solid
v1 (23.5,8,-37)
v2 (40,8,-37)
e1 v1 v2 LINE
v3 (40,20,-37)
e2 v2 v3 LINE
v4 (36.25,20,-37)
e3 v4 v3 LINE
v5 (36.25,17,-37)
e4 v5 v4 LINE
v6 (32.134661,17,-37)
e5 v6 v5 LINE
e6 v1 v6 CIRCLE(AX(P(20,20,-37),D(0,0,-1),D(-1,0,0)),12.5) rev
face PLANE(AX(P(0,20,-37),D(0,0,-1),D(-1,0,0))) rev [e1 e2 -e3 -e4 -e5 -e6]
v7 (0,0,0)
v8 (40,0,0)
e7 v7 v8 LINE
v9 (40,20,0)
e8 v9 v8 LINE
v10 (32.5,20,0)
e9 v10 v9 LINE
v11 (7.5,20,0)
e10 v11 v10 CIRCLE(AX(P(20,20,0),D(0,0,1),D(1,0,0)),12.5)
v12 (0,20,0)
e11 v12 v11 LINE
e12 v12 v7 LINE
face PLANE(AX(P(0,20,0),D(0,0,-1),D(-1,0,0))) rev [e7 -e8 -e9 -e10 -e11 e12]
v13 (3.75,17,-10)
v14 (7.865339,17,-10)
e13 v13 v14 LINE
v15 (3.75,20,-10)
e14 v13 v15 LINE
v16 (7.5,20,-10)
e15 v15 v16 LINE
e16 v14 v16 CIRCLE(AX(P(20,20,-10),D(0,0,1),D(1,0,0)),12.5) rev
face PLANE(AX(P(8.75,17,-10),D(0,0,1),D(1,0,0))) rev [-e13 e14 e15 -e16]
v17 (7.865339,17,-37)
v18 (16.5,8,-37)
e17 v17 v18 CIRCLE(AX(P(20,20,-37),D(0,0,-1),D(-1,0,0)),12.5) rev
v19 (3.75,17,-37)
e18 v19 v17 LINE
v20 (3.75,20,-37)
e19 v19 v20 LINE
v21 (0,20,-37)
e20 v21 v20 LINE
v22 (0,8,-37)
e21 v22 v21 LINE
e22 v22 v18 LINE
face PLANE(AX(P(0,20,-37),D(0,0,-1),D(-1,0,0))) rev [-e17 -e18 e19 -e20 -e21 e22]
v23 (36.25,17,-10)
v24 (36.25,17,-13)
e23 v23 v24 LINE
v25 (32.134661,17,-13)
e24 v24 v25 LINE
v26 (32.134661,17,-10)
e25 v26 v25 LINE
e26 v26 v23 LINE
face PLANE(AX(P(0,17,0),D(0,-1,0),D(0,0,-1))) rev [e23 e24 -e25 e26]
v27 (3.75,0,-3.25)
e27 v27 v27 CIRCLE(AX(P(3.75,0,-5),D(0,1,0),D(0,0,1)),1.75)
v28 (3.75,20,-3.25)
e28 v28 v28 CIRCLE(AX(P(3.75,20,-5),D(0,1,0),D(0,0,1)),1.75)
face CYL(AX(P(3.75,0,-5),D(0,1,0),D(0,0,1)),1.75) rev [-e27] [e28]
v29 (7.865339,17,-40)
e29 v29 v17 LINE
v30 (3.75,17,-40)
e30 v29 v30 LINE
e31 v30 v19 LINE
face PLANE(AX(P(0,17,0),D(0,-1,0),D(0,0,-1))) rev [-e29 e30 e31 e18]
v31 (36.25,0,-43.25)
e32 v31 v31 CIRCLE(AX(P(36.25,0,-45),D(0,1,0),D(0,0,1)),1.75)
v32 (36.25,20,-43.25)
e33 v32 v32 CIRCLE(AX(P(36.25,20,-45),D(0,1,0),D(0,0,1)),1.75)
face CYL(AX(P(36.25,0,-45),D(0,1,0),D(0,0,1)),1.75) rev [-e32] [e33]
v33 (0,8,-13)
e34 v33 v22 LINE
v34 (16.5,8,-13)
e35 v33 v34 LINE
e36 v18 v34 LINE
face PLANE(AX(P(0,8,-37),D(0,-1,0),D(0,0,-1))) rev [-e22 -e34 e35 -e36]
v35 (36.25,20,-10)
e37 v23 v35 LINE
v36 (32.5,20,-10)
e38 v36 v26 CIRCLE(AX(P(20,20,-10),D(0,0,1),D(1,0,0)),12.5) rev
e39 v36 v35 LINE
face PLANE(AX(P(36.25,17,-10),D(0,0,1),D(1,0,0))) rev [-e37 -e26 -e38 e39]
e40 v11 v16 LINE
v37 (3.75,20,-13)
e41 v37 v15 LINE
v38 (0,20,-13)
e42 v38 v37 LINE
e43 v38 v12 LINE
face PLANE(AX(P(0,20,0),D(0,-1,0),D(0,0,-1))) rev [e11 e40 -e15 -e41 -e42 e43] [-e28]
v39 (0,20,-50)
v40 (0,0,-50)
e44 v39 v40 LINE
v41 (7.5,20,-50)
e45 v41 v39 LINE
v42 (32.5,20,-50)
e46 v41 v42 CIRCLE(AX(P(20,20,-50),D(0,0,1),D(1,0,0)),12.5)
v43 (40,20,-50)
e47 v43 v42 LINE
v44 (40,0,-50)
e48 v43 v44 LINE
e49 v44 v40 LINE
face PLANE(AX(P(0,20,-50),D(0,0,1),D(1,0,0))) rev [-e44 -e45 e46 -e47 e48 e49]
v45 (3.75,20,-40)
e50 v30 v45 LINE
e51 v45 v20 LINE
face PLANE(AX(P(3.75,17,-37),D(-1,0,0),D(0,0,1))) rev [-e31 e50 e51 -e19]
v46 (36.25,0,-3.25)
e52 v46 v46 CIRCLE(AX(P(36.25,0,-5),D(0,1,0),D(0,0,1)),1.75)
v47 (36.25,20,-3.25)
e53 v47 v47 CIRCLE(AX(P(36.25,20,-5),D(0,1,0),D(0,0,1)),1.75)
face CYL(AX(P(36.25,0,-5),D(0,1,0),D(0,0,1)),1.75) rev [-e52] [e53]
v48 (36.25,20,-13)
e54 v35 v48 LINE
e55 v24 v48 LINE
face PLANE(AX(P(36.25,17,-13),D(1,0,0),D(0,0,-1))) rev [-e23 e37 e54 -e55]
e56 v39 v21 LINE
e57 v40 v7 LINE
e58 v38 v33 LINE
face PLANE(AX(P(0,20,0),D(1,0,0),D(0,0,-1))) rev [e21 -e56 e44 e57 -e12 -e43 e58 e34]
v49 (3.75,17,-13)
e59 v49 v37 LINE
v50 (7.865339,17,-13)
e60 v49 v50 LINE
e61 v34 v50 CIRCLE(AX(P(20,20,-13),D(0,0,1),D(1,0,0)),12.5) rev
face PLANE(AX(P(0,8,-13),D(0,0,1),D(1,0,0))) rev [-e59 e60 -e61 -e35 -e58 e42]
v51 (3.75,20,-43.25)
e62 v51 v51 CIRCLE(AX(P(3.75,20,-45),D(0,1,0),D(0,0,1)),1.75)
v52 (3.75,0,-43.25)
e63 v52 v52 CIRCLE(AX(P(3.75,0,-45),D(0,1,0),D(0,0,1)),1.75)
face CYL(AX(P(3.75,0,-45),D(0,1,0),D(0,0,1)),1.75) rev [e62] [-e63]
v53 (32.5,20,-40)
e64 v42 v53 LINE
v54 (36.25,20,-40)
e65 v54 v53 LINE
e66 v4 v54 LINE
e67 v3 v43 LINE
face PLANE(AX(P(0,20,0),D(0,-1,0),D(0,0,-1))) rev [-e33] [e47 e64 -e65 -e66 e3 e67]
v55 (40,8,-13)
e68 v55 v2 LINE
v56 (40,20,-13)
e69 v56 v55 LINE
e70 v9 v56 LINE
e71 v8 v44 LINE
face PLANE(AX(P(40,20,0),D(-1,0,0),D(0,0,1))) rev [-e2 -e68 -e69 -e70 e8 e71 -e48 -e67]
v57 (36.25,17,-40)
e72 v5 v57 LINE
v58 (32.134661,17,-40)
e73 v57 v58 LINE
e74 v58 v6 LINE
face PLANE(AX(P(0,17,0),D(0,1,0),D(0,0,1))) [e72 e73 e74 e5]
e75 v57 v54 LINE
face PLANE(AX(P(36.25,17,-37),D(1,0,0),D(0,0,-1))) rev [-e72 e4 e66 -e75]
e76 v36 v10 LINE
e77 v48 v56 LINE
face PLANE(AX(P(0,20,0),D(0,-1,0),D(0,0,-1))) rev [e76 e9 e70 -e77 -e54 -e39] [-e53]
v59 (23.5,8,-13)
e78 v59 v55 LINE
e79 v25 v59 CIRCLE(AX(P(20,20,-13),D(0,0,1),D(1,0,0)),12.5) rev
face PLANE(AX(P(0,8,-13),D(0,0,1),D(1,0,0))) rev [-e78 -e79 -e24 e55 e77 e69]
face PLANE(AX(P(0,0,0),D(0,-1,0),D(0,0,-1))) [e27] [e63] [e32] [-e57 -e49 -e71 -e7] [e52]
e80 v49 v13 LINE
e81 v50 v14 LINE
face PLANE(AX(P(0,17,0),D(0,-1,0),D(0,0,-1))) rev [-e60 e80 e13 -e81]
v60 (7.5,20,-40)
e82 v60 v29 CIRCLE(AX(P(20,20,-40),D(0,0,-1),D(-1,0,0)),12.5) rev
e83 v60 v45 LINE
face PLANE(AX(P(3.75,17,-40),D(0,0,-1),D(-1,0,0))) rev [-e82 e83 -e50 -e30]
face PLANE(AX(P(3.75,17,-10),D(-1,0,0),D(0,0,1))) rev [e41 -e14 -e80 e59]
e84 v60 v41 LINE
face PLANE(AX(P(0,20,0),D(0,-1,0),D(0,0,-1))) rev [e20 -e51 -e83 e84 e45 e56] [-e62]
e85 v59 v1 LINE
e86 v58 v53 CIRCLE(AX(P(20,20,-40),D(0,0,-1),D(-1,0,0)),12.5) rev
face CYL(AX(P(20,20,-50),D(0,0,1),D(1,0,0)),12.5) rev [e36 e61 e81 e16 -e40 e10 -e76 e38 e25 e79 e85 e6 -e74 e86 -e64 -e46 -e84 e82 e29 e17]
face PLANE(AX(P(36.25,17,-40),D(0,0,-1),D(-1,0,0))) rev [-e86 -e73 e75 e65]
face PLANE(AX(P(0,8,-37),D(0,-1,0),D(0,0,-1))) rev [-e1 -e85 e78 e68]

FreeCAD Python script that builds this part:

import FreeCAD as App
import Part
import Sketcher
from FreeCAD import Vector
Q = App.Units.Quantity

doc = App.newDocument("Part")
body = doc.addObject("PartDesign::Body", "Body")

sketch1 = doc.addObject("Sketcher::SketchObject", "Sketch")
body.addObject(sketch1)
sketch1.AttachmentSupport = (doc.XZ_Plane, [""])
sketch1.MapMode = "FlatFace"
sketch1.addGeometry(Part.LineSegment(Vector(0, -50, 0), Vector(0, 0, 0)), False)
sketch1.addGeometry(Part.LineSegment(Vector(0, 0, 0), Vector(40, 0, 0)), False)
sketch1.addGeometry(Part.LineSegment(Vector(40, 0, 0), Vector(40, -50, 0)), False)
sketch1.addGeometry(Part.LineSegment(Vector(40, -50, 0), Vector(0, -50, 0)), False)
sketch1.addConstraint(Sketcher.Constraint("Coincident", 0, 2, 1, 1))
sketch1.addConstraint(Sketcher.Constraint("Coincident", 1, 2, 2, 1))
sketch1.addConstraint(Sketcher.Constraint("Coincident", 2, 2, 3, 1))
sketch1.addConstraint(Sketcher.Constraint("Coincident", 3, 2, 0, 1))
sketch1.addConstraint(Sketcher.Constraint("Vertical", 0))
sketch1.addConstraint(Sketcher.Constraint("Horizontal", 1))
sketch1.addConstraint(Sketcher.Constraint("Vertical", 2))
sketch1.addConstraint(Sketcher.Constraint("Horizontal", 3))
sketch1.addConstraint(Sketcher.Constraint("Coincident", 0, 2, -1, 1))
sketch1.addConstraint(Sketcher.Constraint("DistanceX", 1, 1, 1, 2, Q("40 mm")))
sketch1.addConstraint(Sketcher.Constraint("DistanceY", 0, 1, 0, 2, Q("50 mm")))
pad1 = doc.addObject("PartDesign::Pad", "Pad")
body.addObject(pad1)
pad1.Profile = sketch1
pad1.Length = 20
pad1.Reversed = True

sketch2 = doc.addObject("Sketcher::SketchObject", "Sketch001")
body.addObject(sketch2)
sketch2.AttachmentSupport = (doc.XY_Plane, [""])
sketch2.MapMode = "FlatFace"
sketch2.addGeometry(Part.Circle(Vector(20, 20, 0), Vector(0, 0, 1), 12), False)
sketch2.addConstraint(Sketcher.Constraint("Diameter", 0, Q("25 mm")))
sketch2.addConstraint(Sketcher.Constraint("DistanceX", -1, 1, 0, 3, Q("20 mm")))
sketch2.addConstraint(Sketcher.Constraint("DistanceY", -1, 1, 0, 3, Q("20 mm")))
pocket1 = doc.addObject("PartDesign::Pocket", "Pocket")
body.addObject(pocket1)
pocket1.Profile = sketch2
pocket1.Type = "ThroughAll"

sketch3 = doc.addObject("Sketcher::SketchObject", "Sketch002")
body.addObject(sketch3)
sketch3.AttachmentSupport = (doc.XZ_Plane, [""])
sketch3.MapMode = "FlatFace"
sketch3.AttachmentOffset = App.Placement(Vector(0, 0, -20), App.Rotation())
sketch3.addGeometry(Part.Circle(Vector(3.8, -45, 0), Vector(0, 0, 1), 1.8), False)
sketch3.addGeometry(Part.Circle(Vector(36.2, -45, 0), Vector(0, 0, 1), 1.8), False)
sketch3.addGeometry(Part.Circle(Vector(36.2, -5, 0), Vector(0, 0, 1), 1.8), False)
sketch3.addGeometry(Part.Circle(Vector(3.8, -5, 0), Vector(0, 0, 1), 1.8), False)
sketch3.addConstraint(Sketcher.Constraint("Equal", 0, 1))
sketch3.addConstraint(Sketcher.Constraint("Equal", 1, 2))
sketch3.addConstraint(Sketcher.Constraint("Equal", 2, 3))
sketch3.addConstraint(Sketcher.Constraint("Horizontal", 0, 3, 1, 3))
sketch3.addConstraint(Sketcher.Constraint("Horizontal", 2, 3, 3, 3))
sketch3.addConstraint(Sketcher.Constraint("Vertical", 1, 3, 2, 3))
sketch3.addConstraint(Sketcher.Constraint("Vertical", 0, 3, 3, 3))
sketch3.addConstraint(Sketcher.Constraint("Diameter", 0, Q("3.5 mm")))
sketch3.addConstraint(Sketcher.Constraint("DistanceY", 0, 3, -1, 1, Q("45 mm")))
sketch3.addConstraint(Sketcher.Constraint("DistanceY", 2, 3, -1, 1, Q("5 mm")))
sketch3.addConstraint(Sketcher.Constraint("DistanceX", 0, 3, 1, 3, Q("32.5 mm")))
sketch3.addConstraint(Sketcher.Constraint("DistanceX", -1, 1, 0, 3, Q("3.75 mm")))
pocket2 = doc.addObject("PartDesign::Pocket", "Pocket001")
body.addObject(pocket2)
pocket2.Profile = sketch3
pocket2.Type = "ThroughAll"
pocket2.Reversed = True

sketch4 = doc.addObject("Sketcher::SketchObject", "Sketch003")
body.addObject(sketch4)
sketch4.AttachmentSupport = (doc.YZ_Plane, [""])
sketch4.MapMode = "FlatFace"
sketch4.AttachmentOffset = App.Placement(Vector(0, 0, 40), App.Rotation())
sketch4.addGeometry(Part.LineSegment(Vector(20, -37, 0), Vector(20, -13, 0)), False)
sketch4.addGeometry(Part.LineSegment(Vector(20, -13, 0), Vector(8, -13, 0)), False)
sketch4.addGeometry(Part.LineSegment(Vector(8, -13, 0), Vector(8, -37, 0)), False)
sketch4.addGeometry(Part.LineSegment(Vector(8, -37, 0), Vector(20, -37, 0)), False)
sketch4.addConstraint(Sketcher.Constraint("Coincident", 0, 2, 1, 1))
sketch4.addConstraint(Sketcher.Constraint("Coincident", 1, 2, 2, 1))
sketch4.addConstraint(Sketcher.Constraint("Coincident", 2, 2, 3, 1))
sketch4.addConstraint(Sketcher.Constraint("Coincident", 3, 2, 0, 1))
sketch4.addConstraint(Sketcher.Constraint("Vertical", 0))
sketch4.addConstraint(Sketcher.Constraint("Horizontal", 1))
sketch4.addConstraint(Sketcher.Constraint("Vertical", 2))
sketch4.addConstraint(Sketcher.Constraint("Horizontal", 3))
sketch4.addConstraint(Sketcher.Constraint("DistanceX", 1, 2, 1, 1, Q("12 mm")))
sketch4.addConstraint(Sketcher.Constraint("DistanceY", 0, 1, 0, 2, Q("24 mm")))
sketch4.addConstraint(Sketcher.Constraint("DistanceX", -1, 1, 0, 2, Q("20 mm")))
sketch4.addConstraint(Sketcher.Constraint("DistanceY", 0, 2, -1, 1, Q("13 mm")))
pocket3 = doc.addObject("PartDesign::Pocket", "Pocket002")
body.addObject(pocket3)
pocket3.Profile = sketch4
pocket3.Type = "ThroughAll"

sketch5 = doc.addObject("Sketcher::SketchObject", "Sketch004")
body.addObject(sketch5)
sketch5.AttachmentSupport = (doc.XZ_Plane, [""])
sketch5.MapMode = "FlatFace"
sketch5.AttachmentOffset = App.Placement(Vector(0, 0, -20), App.Rotation())
sketch5.addGeometry(Part.LineSegment(Vector(3.8, -40, 0), Vector(3.8, -37, 0)), False)
sketch5.addGeometry(Part.LineSegment(Vector(3.8, -37, 0), Vector(8.8, -37, 0)), False)
sketch5.addGeometry(Part.LineSegment(Vector(8.8, -37, 0), Vector(8.8, -40, 0)), False)
sketch5.addGeometry(Part.LineSegment(Vector(8.8, -40, 0), Vector(3.8, -40, 0)), False)
sketch5.addGeometry(Part.LineSegment(Vector(31.2, -40, 0), Vector(31.2, -37, 0)), False)
sketch5.addGeometry(Part.LineSegment(Vector(31.2, -37, 0), Vector(36.2, -37, 0)), False)
sketch5.addGeometry(Part.LineSegment(Vector(36.2, -37, 0), Vector(36.2, -40, 0)), False)
sketch5.addGeometry(Part.LineSegment(Vector(36.2, -40, 0), Vector(31.2, -40, 0)), False)
sketch5.addGeometry(Part.LineSegment(Vector(31.2, -13, 0), Vector(31.2, -10, 0)), False)
sketch5.addGeometry(Part.LineSegment(Vector(31.2, -10, 0), Vector(36.2, -10, 0)), False)
sketch5.addGeometry(Part.LineSegment(Vector(36.2, -10, 0), Vector(36.2, -13, 0)), False)
sketch5.addGeometry(Part.LineSegment(Vector(36.2, -13, 0), Vector(31.2, -13, 0)), False)
sketch5.addGeometry(Part.LineSegment(Vector(3.8, -13, 0), Vector(3.8, -10, 0)), False)
sketch5.addGeometry(Part.LineSegment(Vector(3.8, -10, 0), Vector(8.8, -10, 0)), False)
sketch5.addGeometry(Part.LineSegment(Vector(8.8, -10, 0), Vector(8.8, -13, 0)), False)
sketch5.addGeometry(Part.LineSegment(Vector(8.8, -13, 0), Vector(3.8, -13, 0)), False)
sketch5.addConstraint(Sketcher.Constraint("Coincident", 0, 2, 1, 1))
sketch5.addConstraint(Sketcher.Constraint("Coincident", 1, 2, 2, 1))
sketch5.addConstraint(Sketcher.Constraint("Coincident", 2, 2, 3, 1))
sketch5.addConstraint(Sketcher.Constraint("Coincident", 3, 2, 0, 1))
sketch5.addConstraint(Sketcher.Constraint("Coincident", 4, 2, 5, 1))
sketch5.addConstraint(Sketcher.Constraint("Coincident", 5, 2, 6, 1))
sketch5.addConstraint(Sketcher.Constraint("Coincident", 6, 2, 7, 1))
sketch5.addConstraint(Sketcher.Constraint("Coincident", 7, 2, 4, 1))
sketch5.addConstraint(Sketcher.Constraint("Coincident", 8, 2, 9, 1))
sketch5.addConstraint(Sketcher.Constraint("Coincident", 9, 2, 10, 1))
sketch5.addConstraint(Sketcher.Constraint("Coincident", 10, 2, 11, 1))
sketch5.addConstraint(Sketcher.Constraint("Coincident", 11, 2, 8, 1))
sketch5.addConstraint(Sketcher.Constraint("Coincident", 12, 2, 13, 1))
sketch5.addConstraint(Sketcher.Constraint("Coincident", 13, 2, 14, 1))
sketch5.addConstraint(Sketcher.Constraint("Coincident", 14, 2, 15, 1))
sketch5.addConstraint(Sketcher.Constraint("Coincident", 15, 2, 12, 1))
sketch5.addConstraint(Sketcher.Constraint("Vertical", 0))
sketch5.addConstraint(Sketcher.Constraint("Horizontal", 1))
sketch5.addConstraint(Sketcher.Constraint("Vertical", 2))
sketch5.addConstraint(Sketcher.Constraint("Horizontal", 3))
sketch5.addConstraint(Sketcher.Constraint("Vertical", 4))
sketch5.addConstraint(Sketcher.Constraint("Horizontal", 5))
sketch5.addConstraint(Sketcher.Constraint("Vertical", 6))
sketch5.addConstraint(Sketcher.Constraint("Horizontal", 7))
sketch5.addConstraint(Sketcher.Constraint("Vertical", 8))
sketch5.addConstraint(Sketcher.Constraint("Horizontal", 9))
sketch5.addConstraint(Sketcher.Constraint("Vertical", 10))
sketch5.addConstraint(Sketcher.Constraint("Horizontal", 11))
sketch5.addConstraint(Sketcher.Constraint("Vertical", 12))
sketch5.addConstraint(Sketcher.Constraint("Horizontal", 13))
sketch5.addConstraint(Sketcher.Constraint("Vertical", 14))
sketch5.addConstraint(Sketcher.Constraint("Horizontal", 15))
sketch5.addConstraint(Sketcher.Constraint("Horizontal", 1, 2, 4, 2))
sketch5.addConstraint(Sketcher.Constraint("Horizontal", 3, 2, 6, 2))
sketch5.addConstraint(Sketcher.Constraint("Horizontal", 9, 2, 12, 2))
sketch5.addConstraint(Sketcher.Constraint("Horizontal", 11, 2, 14, 2))
sketch5.addConstraint(Sketcher.Constraint("Vertical", 7, 2, 8, 2))
sketch5.addConstraint(Sketcher.Constraint("Vertical", 6, 2, 9, 2))
sketch5.addConstraint(Sketcher.Constraint("Vertical", 3, 2, 12, 2))
sketch5.addConstraint(Sketcher.Constraint("Vertical", 2, 2, 13, 2))
sketch5.addConstraint(Sketcher.Constraint("Equal", 3, 5))
sketch5.addConstraint(Sketcher.Constraint("Equal", 6, 8))
sketch5.addConstraint(Sketcher.Constraint("DistanceX", 1, 1, 1, 2, Q("5 mm")))
sketch5.addConstraint(Sketcher.Constraint("DistanceY", 0, 1, 0, 2, Q("3 mm")))
sketch5.addConstraint(Sketcher.Constraint("DistanceY", 0, 2, -1, 1, Q("37 mm")))
sketch5.addConstraint(Sketcher.Constraint("DistanceY", 8, 2, -1, 1, Q("10 mm")))
sketch5.addConstraint(Sketcher.Constraint("DistanceX", 1, 2, 4, 2, Q("22.5 mm")))
sketch5.addConstraint(Sketcher.Constraint("DistanceX", -1, 1, 0, 2, Q("3.75 mm")))
pocket4 = doc.addObject("PartDesign::Pocket", "Pocket003")
body.addObject(pocket4)
pocket4.Profile = sketch5
pocket4.Length = 3
pocket4.Reversed = True

doc.recompute()
